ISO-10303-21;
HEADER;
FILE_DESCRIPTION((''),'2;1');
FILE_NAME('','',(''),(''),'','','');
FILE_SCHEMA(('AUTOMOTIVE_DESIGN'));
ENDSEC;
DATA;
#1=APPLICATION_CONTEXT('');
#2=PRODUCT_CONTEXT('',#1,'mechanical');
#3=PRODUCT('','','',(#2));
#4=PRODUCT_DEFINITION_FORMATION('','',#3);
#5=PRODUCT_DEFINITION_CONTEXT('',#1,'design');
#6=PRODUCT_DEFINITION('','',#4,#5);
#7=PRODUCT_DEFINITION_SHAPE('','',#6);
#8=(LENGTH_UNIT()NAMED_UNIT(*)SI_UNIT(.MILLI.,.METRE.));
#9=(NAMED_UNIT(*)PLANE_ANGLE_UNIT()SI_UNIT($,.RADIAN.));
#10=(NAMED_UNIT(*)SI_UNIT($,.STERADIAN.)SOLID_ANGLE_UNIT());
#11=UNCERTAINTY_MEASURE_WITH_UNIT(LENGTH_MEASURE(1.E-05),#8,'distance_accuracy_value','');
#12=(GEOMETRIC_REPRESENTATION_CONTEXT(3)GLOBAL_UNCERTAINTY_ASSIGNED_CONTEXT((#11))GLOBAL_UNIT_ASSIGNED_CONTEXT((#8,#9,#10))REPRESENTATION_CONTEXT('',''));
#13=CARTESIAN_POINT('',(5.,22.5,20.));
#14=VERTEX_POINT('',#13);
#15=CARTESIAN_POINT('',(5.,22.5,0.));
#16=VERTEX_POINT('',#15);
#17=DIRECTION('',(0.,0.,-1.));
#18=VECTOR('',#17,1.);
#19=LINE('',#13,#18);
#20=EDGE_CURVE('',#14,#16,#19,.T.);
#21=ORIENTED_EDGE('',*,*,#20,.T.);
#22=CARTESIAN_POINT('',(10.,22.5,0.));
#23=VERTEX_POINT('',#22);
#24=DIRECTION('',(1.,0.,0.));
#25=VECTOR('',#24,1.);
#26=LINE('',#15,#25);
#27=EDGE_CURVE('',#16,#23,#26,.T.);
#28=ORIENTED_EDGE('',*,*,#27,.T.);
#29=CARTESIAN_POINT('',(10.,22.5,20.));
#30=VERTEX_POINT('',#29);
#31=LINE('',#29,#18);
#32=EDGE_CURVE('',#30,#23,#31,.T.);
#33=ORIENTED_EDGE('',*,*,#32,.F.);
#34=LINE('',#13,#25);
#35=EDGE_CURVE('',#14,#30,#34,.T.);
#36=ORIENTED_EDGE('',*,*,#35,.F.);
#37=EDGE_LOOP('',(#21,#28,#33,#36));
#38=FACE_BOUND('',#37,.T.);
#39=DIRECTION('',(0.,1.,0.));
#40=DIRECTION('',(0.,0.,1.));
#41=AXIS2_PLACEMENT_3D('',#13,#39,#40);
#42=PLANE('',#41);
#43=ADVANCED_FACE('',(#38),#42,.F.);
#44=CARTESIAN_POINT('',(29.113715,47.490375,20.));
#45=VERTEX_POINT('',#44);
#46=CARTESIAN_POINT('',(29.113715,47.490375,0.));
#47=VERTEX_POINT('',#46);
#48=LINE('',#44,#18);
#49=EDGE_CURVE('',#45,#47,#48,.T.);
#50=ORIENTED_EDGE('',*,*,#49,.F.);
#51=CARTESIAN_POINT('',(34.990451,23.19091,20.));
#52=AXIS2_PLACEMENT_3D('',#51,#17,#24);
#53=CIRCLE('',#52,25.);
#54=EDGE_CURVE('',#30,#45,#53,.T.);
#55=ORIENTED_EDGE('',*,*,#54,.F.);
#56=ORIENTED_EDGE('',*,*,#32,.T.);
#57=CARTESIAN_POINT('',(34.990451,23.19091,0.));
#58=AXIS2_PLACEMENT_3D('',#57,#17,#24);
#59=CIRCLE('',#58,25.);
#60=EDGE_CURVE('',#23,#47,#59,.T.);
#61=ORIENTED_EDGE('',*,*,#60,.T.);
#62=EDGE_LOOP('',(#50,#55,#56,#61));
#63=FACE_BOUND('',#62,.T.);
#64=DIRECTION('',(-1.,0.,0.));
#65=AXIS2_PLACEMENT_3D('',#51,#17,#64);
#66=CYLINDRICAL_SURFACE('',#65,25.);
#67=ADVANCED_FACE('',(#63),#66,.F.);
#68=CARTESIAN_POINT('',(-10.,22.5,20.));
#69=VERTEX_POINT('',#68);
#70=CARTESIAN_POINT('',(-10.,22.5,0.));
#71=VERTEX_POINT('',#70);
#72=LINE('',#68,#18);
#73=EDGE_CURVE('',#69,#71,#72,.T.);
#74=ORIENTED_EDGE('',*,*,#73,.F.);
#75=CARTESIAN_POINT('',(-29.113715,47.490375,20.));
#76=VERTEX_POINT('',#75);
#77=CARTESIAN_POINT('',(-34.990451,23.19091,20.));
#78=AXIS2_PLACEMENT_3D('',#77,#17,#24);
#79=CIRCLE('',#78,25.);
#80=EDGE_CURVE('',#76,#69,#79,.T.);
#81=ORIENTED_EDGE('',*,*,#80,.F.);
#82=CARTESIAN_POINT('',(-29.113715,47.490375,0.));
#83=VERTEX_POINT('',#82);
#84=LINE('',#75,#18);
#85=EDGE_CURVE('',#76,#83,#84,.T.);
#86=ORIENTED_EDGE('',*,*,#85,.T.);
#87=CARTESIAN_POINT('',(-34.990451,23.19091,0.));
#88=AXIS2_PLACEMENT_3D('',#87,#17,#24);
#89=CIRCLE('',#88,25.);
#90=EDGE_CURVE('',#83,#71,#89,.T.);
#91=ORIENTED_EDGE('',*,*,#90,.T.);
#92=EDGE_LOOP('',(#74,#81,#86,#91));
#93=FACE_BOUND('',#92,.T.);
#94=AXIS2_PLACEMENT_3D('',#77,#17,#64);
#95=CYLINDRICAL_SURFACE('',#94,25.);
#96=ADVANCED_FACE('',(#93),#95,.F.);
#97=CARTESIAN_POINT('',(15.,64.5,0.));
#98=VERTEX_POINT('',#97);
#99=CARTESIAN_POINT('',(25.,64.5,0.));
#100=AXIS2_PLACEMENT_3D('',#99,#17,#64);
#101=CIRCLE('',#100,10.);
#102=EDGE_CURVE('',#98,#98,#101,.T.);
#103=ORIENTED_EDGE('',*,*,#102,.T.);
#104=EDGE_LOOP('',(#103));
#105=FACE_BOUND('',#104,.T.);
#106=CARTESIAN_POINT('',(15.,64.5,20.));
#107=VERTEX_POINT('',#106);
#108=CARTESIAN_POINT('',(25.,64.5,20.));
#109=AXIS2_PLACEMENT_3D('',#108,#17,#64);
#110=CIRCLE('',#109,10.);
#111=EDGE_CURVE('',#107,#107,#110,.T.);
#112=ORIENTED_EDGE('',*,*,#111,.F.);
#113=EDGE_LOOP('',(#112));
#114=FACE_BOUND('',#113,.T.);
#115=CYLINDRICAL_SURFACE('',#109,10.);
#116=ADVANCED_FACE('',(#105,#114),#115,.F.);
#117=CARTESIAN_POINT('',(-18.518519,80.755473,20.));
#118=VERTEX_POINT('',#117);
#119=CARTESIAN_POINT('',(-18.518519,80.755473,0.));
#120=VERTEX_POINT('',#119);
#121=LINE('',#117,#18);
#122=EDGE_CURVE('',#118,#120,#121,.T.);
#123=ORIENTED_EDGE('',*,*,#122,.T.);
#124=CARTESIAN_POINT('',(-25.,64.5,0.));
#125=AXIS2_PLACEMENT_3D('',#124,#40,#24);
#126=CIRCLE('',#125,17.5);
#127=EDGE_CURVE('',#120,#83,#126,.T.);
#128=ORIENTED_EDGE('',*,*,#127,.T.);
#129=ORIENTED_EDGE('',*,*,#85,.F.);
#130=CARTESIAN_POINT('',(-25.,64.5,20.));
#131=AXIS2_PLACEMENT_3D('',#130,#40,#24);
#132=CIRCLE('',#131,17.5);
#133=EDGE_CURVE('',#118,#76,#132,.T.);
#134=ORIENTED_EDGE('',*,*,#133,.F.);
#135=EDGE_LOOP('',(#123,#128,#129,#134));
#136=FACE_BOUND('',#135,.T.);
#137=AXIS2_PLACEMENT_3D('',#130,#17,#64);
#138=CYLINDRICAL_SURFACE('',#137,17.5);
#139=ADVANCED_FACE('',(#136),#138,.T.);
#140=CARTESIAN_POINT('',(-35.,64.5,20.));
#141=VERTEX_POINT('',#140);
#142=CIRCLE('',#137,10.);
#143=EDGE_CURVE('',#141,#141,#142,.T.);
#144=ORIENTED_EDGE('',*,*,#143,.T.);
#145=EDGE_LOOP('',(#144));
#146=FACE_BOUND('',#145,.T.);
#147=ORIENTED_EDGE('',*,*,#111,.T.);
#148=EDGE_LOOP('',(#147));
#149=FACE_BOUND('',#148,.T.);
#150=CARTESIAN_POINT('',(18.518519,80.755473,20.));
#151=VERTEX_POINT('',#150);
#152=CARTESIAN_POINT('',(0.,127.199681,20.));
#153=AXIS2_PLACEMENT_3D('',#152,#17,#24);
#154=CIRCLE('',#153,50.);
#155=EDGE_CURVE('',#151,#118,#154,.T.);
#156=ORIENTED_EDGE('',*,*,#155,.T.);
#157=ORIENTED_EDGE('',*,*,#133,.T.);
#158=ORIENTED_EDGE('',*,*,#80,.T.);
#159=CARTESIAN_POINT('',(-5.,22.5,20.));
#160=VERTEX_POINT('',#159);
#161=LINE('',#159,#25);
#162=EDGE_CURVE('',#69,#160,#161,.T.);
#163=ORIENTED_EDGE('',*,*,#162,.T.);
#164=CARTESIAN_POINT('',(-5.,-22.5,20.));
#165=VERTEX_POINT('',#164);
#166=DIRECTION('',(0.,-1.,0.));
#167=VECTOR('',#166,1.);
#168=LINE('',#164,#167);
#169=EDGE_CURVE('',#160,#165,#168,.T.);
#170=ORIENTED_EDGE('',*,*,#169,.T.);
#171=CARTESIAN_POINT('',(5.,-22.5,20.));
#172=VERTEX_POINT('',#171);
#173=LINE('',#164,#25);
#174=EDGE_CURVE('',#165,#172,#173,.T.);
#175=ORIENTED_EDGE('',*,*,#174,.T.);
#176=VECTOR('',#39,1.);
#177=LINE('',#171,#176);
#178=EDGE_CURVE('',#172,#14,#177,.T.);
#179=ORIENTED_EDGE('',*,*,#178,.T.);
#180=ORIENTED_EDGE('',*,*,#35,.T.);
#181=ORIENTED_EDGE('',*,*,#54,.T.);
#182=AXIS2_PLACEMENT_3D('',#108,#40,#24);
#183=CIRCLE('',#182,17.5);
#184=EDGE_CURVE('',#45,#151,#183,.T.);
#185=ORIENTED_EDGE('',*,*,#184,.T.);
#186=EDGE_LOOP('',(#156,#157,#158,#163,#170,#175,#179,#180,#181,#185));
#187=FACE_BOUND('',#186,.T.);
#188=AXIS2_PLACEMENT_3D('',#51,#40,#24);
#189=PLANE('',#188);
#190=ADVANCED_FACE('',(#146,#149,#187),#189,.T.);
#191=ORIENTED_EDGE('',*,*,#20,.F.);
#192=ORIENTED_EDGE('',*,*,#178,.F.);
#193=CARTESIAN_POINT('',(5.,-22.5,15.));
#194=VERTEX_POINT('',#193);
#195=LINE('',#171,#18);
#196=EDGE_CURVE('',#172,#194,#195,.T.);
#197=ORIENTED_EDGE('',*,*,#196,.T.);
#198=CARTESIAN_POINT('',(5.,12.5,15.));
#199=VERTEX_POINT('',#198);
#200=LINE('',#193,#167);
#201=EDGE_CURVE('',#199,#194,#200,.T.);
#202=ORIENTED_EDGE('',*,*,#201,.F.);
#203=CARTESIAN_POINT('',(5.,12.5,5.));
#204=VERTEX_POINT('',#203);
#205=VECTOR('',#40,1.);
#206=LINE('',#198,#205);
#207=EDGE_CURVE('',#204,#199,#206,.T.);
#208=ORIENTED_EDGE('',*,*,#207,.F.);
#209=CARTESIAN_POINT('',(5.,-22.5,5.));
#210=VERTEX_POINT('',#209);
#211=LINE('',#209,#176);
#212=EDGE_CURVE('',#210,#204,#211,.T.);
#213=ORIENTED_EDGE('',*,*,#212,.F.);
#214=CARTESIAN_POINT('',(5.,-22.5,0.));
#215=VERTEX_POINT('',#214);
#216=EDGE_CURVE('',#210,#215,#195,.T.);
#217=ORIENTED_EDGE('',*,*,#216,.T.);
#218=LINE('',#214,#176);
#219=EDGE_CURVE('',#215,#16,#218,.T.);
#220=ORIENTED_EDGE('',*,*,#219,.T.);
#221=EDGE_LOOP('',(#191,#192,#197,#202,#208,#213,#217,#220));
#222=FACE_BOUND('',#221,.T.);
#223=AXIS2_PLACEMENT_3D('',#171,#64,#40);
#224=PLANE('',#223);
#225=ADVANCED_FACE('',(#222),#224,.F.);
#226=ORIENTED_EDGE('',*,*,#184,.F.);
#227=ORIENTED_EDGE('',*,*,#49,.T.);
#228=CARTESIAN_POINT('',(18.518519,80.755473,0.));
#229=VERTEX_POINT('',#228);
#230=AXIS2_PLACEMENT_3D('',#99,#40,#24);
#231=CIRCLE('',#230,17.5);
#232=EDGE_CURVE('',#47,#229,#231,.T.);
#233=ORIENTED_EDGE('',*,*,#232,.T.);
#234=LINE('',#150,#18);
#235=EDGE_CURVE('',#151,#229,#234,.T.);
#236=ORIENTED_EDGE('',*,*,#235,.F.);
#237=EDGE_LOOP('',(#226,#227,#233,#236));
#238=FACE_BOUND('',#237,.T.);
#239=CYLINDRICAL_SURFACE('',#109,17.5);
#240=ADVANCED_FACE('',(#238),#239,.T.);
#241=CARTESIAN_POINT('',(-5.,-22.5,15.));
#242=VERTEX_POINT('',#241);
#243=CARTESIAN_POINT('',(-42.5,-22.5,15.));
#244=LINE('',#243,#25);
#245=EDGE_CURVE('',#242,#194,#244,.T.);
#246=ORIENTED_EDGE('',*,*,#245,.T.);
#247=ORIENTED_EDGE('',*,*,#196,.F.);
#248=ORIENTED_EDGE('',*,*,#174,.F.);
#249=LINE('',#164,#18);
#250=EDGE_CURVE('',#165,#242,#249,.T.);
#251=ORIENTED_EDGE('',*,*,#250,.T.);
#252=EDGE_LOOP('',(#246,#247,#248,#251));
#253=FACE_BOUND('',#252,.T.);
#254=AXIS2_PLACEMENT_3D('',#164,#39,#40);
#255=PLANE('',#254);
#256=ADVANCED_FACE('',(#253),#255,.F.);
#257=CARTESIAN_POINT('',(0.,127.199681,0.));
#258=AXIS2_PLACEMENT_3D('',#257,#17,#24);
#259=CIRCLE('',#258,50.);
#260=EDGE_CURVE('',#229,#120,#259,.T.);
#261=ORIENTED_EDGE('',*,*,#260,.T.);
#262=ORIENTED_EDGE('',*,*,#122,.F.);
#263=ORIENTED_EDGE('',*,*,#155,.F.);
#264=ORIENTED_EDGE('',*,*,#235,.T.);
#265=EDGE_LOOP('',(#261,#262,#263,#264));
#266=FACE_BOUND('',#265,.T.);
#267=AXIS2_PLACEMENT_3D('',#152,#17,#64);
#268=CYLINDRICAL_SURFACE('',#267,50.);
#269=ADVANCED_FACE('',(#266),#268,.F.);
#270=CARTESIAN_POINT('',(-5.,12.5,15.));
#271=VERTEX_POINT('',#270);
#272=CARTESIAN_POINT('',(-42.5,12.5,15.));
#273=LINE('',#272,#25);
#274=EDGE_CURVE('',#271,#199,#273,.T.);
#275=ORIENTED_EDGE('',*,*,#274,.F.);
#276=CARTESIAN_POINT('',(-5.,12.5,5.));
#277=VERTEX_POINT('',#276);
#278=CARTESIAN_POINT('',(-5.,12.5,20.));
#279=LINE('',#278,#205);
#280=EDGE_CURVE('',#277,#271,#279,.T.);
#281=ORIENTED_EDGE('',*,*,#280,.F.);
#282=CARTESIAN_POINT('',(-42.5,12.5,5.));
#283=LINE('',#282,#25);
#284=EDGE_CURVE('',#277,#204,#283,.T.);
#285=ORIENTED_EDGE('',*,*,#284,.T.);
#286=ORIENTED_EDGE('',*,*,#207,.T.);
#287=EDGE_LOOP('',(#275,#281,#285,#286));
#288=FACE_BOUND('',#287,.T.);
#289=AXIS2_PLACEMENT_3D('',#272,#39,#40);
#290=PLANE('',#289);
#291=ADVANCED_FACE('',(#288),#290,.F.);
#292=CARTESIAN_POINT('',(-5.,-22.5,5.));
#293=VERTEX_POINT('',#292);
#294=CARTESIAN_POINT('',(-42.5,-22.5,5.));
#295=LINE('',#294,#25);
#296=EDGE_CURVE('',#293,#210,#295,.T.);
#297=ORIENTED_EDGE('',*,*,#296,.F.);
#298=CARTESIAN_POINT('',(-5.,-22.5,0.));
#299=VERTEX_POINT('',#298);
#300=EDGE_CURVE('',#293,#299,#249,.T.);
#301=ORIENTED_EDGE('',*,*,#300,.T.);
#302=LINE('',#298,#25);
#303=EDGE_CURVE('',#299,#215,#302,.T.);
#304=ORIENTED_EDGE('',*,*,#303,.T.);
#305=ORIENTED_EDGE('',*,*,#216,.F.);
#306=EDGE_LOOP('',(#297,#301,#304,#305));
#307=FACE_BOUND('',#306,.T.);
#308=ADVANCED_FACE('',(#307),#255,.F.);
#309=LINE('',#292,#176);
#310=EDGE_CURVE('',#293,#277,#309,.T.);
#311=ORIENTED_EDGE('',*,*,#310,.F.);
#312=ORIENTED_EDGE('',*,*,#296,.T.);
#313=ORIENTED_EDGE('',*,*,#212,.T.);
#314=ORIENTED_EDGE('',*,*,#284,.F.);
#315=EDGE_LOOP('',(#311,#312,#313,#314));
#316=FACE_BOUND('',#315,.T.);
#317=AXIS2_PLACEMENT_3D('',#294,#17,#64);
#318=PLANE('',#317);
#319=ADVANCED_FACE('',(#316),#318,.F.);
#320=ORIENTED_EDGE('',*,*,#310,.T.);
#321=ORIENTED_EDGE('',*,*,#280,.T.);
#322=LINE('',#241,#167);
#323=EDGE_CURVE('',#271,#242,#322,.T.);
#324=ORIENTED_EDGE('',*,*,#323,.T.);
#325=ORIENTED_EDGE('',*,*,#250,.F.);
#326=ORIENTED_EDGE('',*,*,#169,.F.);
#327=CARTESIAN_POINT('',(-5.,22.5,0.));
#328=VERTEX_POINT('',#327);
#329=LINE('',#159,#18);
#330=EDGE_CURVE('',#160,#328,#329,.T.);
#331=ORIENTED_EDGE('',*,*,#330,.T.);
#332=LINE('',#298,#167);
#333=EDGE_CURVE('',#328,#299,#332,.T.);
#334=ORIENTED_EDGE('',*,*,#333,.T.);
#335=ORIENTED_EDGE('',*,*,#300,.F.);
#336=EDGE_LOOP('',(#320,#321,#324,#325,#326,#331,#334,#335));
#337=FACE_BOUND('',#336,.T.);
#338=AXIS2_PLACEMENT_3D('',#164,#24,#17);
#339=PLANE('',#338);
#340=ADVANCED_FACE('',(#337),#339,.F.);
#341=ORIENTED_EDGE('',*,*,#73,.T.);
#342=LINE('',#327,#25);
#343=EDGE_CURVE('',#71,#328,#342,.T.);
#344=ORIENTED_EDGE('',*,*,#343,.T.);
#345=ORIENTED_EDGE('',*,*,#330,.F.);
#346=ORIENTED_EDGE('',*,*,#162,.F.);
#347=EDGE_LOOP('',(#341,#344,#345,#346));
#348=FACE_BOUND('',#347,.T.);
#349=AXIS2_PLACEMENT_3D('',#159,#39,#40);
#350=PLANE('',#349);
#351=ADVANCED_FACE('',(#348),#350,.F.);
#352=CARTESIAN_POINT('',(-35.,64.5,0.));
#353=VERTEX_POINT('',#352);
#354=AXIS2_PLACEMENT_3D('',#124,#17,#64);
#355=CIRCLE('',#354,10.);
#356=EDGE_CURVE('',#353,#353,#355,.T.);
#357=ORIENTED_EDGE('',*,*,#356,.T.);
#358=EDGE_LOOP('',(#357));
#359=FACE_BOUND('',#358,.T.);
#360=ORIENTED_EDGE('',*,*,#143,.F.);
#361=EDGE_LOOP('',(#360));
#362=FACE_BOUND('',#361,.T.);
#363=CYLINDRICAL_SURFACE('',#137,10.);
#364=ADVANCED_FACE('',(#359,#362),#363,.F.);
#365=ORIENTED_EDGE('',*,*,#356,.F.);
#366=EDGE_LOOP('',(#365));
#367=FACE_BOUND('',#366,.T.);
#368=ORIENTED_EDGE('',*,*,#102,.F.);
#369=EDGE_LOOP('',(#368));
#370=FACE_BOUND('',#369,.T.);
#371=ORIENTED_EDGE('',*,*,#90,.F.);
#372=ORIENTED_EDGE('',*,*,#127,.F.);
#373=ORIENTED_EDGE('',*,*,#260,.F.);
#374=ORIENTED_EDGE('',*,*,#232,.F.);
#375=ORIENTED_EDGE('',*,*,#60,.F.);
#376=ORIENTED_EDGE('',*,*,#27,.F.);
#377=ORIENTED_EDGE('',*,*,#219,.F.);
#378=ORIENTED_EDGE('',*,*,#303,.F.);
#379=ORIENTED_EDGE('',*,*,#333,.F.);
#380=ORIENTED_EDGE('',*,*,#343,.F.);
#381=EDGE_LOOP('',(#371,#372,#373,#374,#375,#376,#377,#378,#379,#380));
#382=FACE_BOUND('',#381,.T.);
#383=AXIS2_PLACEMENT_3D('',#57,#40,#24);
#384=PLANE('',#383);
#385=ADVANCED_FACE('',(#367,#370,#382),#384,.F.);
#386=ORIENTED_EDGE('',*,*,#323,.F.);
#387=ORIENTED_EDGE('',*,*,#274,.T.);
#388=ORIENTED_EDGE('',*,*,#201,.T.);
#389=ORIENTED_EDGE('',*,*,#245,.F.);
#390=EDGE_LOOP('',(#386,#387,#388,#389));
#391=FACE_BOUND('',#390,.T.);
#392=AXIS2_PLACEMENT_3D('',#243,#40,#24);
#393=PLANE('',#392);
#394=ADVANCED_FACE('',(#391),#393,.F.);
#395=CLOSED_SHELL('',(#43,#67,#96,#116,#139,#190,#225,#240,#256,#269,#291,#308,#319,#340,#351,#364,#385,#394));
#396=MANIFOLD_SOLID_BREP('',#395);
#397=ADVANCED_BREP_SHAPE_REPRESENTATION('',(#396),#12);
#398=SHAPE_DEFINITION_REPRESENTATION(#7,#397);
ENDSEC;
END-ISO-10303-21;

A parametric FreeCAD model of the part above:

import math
import FreeCAD as App
import Part
import Sketcher


def add_polygon(sketch, points):
    """Adds a closed chain of lines whose ends are joined by coincident constraints."""
    first, n = sketch.GeometryCount, len(points)
    for a, b in zip(points, points[1:] + points[:1]):
        sketch.addGeometry(Part.LineSegment(App.Vector(*a, 0), App.Vector(*b, 0)), False)
    for i in range(n):
        sketch.addConstraint(Sketcher.Constraint("Coincident", first + i, 2, first + (i + 1) % n, 1))

doc = App.newDocument("Part")
params = doc.addObject("Spreadsheet::Sheet", "Params")
for row, (alias, value) in enumerate([
    ("sketch1_radius", "25 mm"),
    ("sketch1_radius2", "50 mm"),
    ("sketch1_radius3", "17.5 mm"),
    ("sketch1_width", "10 mm"),
    ("sketch1_width2", "5 mm"),
    ("pad1_length", "20 mm"),
    ("sketch2_width", "35 mm"),
    ("sketch2_height", "10 mm"),
    ("sketch3_diameter", "20 mm"),
], start=1):
    params.set(f"A{row}", alias)
    params.set(f"B{row}", "=" + value)
    params.setAlias(f"B{row}", alias)

body = doc.addObject("PartDesign::Body", "Body")

sketch1 = body.newObject("Sketcher::SketchObject", "Sketch")
sketch1.AttachmentSupport = (doc.getObject("XY_Plane"), [""])
sketch1.MapMode = "FlatFace"
sketch1.addGeometry([
    Part.LineSegment(App.Vector(-5, -22.5, 0), App.Vector(5, -22.5, 0)),
    Part.LineSegment(App.Vector(5, -22.5, 0), App.Vector(5, 22.5, 0)),
    Part.LineSegment(App.Vector(5, 22.5, 0), App.Vector(10, 22.5, 0)),
    Part.ArcOfCircle(Part.Circle(App.Vector(34.990451, 23.19091, 0), App.Vector(0, 0, 1), 25), math.radians(103.595716), math.radians(181.583652)),
    Part.ArcOfCircle(Part.Circle(App.Vector(25, 64.5, 0), App.Vector(0, 0, 1), 17.5), math.radians(-76.404284), math.radians(111.738461)),
    Part.ArcOfCircle(Part.Circle(App.Vector(0, 127.199681, 0), App.Vector(0, 0, 1), 50), math.radians(-111.738461), math.radians(-68.261539)),
    Part.ArcOfCircle(Part.Circle(App.Vector(-25, 64.5, 0), App.Vector(0, 0, 1), 17.5), math.radians(68.261539), math.radians(256.404284)),
    Part.ArcOfCircle(Part.Circle(App.Vector(-34.990451, 23.19091, 0), App.Vector(0, 0, 1), 25), math.radians(-1.583652), math.radians(76.404284)),
    Part.LineSegment(App.Vector(-10, 22.5, 0), App.Vector(-5, 22.5, 0)),
    Part.LineSegment(App.Vector(-5, 22.5, 0), App.Vector(-5, -22.5, 0)),
], False)
sketch1.addConstraint([
    Sketcher.Constraint("Coincident", 0, 2, 1, 1),
    Sketcher.Constraint("Coincident", 1, 2, 2, 1),
    Sketcher.Constraint("Coincident", 2, 2, 3, 2),
    Sketcher.Constraint("Tangent", 3, 1, 4, 1),
    Sketcher.Constraint("Tangent", 4, 2, 5, 2),
    Sketcher.Constraint("Tangent", 5, 1, 6, 1),
    Sketcher.Constraint("Tangent", 6, 2, 7, 2),
    Sketcher.Constraint("Coincident", 7, 1, 8, 1),
    Sketcher.Constraint("Coincident", 8, 2, 9, 1),
    Sketcher.Constraint("Coincident", 9, 2, 0, 1),
    Sketcher.Constraint("Horizontal", 0),
    Sketcher.Constraint("Vertical", 1),
    Sketcher.Constraint("Horizontal", 2),
    Sketcher.Constraint("Horizontal", 8),
    Sketcher.Constraint("Vertical", 9),
    Sketcher.Constraint("Equal", 4, 6),
    Sketcher.Constraint("Equal", 3, 7),
    Sketcher.Constraint("Symmetric", 0, 2, 8, 2, -1, 1),
    Sketcher.Constraint("Symmetric", 4, 3, 6, 3, -2),
    Sketcher.Constraint("Symmetric", 2, 2, 7, 1, -2),
    Sketcher.Constraint("Radius", 3, 25.0),
    Sketcher.Constraint("Radius", 5, 50.0),
    Sketcher.Constraint("Radius", 4, 17.5),
    Sketcher.Constraint("DistanceX", 0, 1, 0, 2, 10.0),
    Sketcher.Constraint("DistanceX", 2, 1, 2, 2, 5.0),
    Sketcher.Constraint("DistanceY", 1, 1, 1, 2, 45.0),
    Sketcher.Constraint("DistanceX", -1, 1, 4, 3, 25.0),
    Sketcher.Constraint("DistanceY", 0, 2, 4, 3, 87.0),
])
sketch1.setExpression("Constraints[20]", "Params.sketch1_radius")
sketch1.setExpression("Constraints[21]", "Params.sketch1_radius2")
sketch1.setExpression("Constraints[22]", "Params.sketch1_radius3")
sketch1.setExpression("Constraints[23]", "Params.sketch1_width")
sketch1.setExpression("Constraints[24]", "Params.sketch1_width2")
pad1 = body.newObject("PartDesign::Pad", "Pad")
pad1.Profile = sketch1
pad1.setExpression("Length", "Params.pad1_length")

sketch2 = body.newObject("Sketcher::SketchObject", "Sketch001")
sketch2.AttachmentSupport = (doc.getObject("YZ_Plane"), [""])
sketch2.MapMode = "FlatFace"
sketch2.AttachmentOffset = App.Placement(App.Vector(0, 0, 5), App.Rotation())
add_polygon(sketch2, [(12.5, 15), (-22.5, 15), (-22.5, 5), (12.5, 5)])
sketch2.addConstraint([
    Sketcher.Constraint("Horizontal", 0),
    Sketcher.Constraint("Vertical", 1),
    Sketcher.Constraint("Horizontal", 2),
    Sketcher.Constraint("Vertical", 3),
    Sketcher.Constraint("DistanceX", 0, 2, 0, 1, 35.0),
    Sketcher.Constraint("DistanceY", 1, 2, 1, 1, 10.0),
    Sketcher.Constraint("DistanceY", -1, 1, 0, 2, 15.0),
    Sketcher.Constraint("DistanceX", 0, 2, -1, 1, 22.5),
])
sketch2.setExpression("Constraints[8]", "Params.sketch2_width")
sketch2.setExpression("Constraints[9]", "Params.sketch2_height")
pocket1 = body.newObject("PartDesign::Pocket", "Pocket")
pocket1.Profile = sketch2
pocket1.Type = "ThroughAll"

sketch3 = body.newObject("Sketcher::SketchObject", "Sketch002")
sketch3.AttachmentSupport = (doc.getObject("XY_Plane"), [""])
sketch3.MapMode = "FlatFace"
sketch3.addGeometry([
    Part.Circle(App.Vector(25, 64.5, 0), App.Vector(0, 0, 1), 10),
    Part.Circle(App.Vector(-25, 64.5, 0), App.Vector(0, 0, 1), 10),
], False)
sketch3.addConstraint([
    Sketcher.Constraint("Equal", 0, 1),
    Sketcher.Constraint("Symmetric", 0, 3, 1, 3, -2),
    Sketcher.Constraint("Diameter", 0, 20.0),
    Sketcher.Constraint("DistanceX", -1, 1, 0, 3, 25.0),
    Sketcher.Constraint("DistanceY", -1, 1, 0, 3, 64.5),
])
sketch3.setExpression("Constraints[2]", "Params.sketch3_diameter")
pocket2 = body.newObject("PartDesign::Pocket", "Pocket001")
pocket2.Profile = sketch3
pocket2.Type = "ThroughAll"
pocket2.Reversed = True

doc.recompute()
